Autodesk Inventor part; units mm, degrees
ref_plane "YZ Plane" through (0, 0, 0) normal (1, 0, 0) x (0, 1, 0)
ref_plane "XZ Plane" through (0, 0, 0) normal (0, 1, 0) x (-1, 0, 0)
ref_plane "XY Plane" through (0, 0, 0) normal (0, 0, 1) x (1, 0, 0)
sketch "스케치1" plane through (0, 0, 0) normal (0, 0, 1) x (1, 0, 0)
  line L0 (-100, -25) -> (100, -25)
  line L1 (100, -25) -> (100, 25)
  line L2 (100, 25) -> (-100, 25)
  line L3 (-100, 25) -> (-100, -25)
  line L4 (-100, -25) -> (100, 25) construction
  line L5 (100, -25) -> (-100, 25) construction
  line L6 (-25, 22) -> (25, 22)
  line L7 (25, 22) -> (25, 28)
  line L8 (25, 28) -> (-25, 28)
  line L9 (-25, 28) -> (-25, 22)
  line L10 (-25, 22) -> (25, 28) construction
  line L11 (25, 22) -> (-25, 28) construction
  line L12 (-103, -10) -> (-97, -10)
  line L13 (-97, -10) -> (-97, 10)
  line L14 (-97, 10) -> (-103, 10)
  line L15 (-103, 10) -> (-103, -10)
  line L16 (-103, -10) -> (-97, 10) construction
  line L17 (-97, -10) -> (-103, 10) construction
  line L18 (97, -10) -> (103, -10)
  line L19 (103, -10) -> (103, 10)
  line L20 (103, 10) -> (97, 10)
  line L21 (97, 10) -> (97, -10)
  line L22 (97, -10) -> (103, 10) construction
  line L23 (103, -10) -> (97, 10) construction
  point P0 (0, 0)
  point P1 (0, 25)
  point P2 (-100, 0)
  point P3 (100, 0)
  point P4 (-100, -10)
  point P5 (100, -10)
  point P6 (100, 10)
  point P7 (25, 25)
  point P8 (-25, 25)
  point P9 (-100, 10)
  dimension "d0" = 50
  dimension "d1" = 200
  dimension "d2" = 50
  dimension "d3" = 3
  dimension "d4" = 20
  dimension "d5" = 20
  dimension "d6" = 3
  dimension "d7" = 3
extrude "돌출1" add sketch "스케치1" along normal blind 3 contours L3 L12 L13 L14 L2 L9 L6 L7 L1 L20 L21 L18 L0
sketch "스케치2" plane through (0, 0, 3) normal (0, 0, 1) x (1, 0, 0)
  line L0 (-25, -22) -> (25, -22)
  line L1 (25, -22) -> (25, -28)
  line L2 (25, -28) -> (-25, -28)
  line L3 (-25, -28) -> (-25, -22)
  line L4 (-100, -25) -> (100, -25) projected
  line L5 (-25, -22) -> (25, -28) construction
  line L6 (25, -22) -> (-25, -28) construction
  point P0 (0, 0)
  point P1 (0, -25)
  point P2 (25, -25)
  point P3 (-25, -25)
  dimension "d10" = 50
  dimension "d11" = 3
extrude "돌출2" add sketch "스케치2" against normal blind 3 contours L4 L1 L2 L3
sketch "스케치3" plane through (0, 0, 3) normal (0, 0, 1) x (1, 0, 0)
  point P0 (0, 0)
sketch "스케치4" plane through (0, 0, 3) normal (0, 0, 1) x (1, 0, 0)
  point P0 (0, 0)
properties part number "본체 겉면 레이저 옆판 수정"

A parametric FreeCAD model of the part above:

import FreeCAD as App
import Part
import Sketcher

V = App.Vector
Q = App.Units.Quantity


def add_polygon(sketch, points):
    """Adds a closed chain of lines whose ends are joined by coincident constraints."""
    first, n = sketch.GeometryCount, len(points)
    for a, b in zip(points, points[1:] + points[:1]):
        sketch.addGeometry(Part.LineSegment(App.Vector(*a, 0), App.Vector(*b, 0)), False)
    for i in range(n):
        sketch.addConstraint(Sketcher.Constraint("Coincident", first + i, 2, first + (i + 1) % n, 1))

doc = App.newDocument("Part")
body = doc.addObject("PartDesign::Body", "Body")

sketch1 = doc.addObject("Sketcher::SketchObject", "Sketch")
body.addObject(sketch1)
sketch1.AttachmentSupport = (doc.XY_Plane, [""])
sketch1.MapMode = "FlatFace"
add_polygon(sketch1, [(-100, -10), (-100, -25), (100, -25), (100, -10), (97, -10), (97, 10), (100, 10), (100, 25), (25, 25), (25, 22), (-25, 22), (-25, 25), (-100, 25), (-100, 10), (-97, 10), (-97, -10)])
sketch1.addConstraint([
    Sketcher.Constraint("Vertical", 0),
    Sketcher.Constraint("Horizontal", 1),
    Sketcher.Constraint("Vertical", 2),
    Sketcher.Constraint("Horizontal", 3),
    Sketcher.Constraint("Vertical", 4),
    Sketcher.Constraint("Horizontal", 5),
    Sketcher.Constraint("Vertical", 6),
    Sketcher.Constraint("Horizontal", 7),
    Sketcher.Constraint("Vertical", 8),
    Sketcher.Constraint("Horizontal", 9),
    Sketcher.Constraint("Vertical", 10),
    Sketcher.Constraint("Horizontal", 11),
    Sketcher.Constraint("Vertical", 12),
    Sketcher.Constraint("Horizontal", 13),
    Sketcher.Constraint("Vertical", 14),
    Sketcher.Constraint("Horizontal", 15),
    Sketcher.Constraint("Symmetric", 0, 2, 6, 2, -1, 1),
    Sketcher.Constraint("Symmetric", 1, 2, 11, 2, -1, 1),
    Sketcher.Constraint("Symmetric", 3, 2, 13, 2, -1, 1),
    Sketcher.Constraint("Symmetric", 5, 2, 12, 2, -2),
    Sketcher.Constraint("Horizontal", 3, 2, 14, 2),
    Sketcher.Constraint("Equal", 7, 11),
    Sketcher.Constraint("Equal", 15, 8),
    Sketcher.Constraint("DistanceX", 1, 1, 1, 2, Q("200 mm")),
    Sketcher.Constraint("DistanceX", 3, 2, 3, 1, Q("3 mm")),
    Sketcher.Constraint("DistanceX", 9, 2, 9, 1, Q("50 mm")),
    Sketcher.Constraint("DistanceY", 4, 1, 4, 2, Q("20 mm")),
    Sketcher.Constraint("DistanceY", 1, 2, 6, 2, Q("50 mm")),
])
pad1 = doc.addObject("PartDesign::Pad", "Pad")
body.addObject(pad1)
pad1.Profile = sketch1
pad1.Length = 3

sketch2 = doc.addObject("Sketcher::SketchObject", "Sketch001")
body.addObject(sketch2)
sketch2.AttachmentSupport = (doc.XY_Plane, [""])
sketch2.MapMode = "FlatFace"
sketch2.AttachmentOffset = App.Placement(V(0, 0, 3), App.Rotation())
add_polygon(sketch2, [(25, -25), (-25, -25), (-25, -28), (25, -28)])
sketch2.addConstraint([
    Sketcher.Constraint("Horizontal", 0),
    Sketcher.Constraint("Vertical", 1),
    Sketcher.Constraint("Horizontal", 2),
    Sketcher.Constraint("Vertical", 3),
    Sketcher.Constraint("DistanceX", 0, 2, 0, 1, Q("50 mm")),
    Sketcher.Constraint("DistanceY", 1, 2, 1, 1, Q("3 mm")),
    Sketcher.Constraint("DistanceX", 0, 2, -1, 1, Q("25 mm")),
    Sketcher.Constraint("DistanceY", 0, 2, -1, 1, Q("25 mm")),
])
pad2 = doc.addObject("PartDesign::Pad", "Pad001")
body.addObject(pad2)
pad2.Profile = sketch2
pad2.Length = 3
pad2.Reversed = True

doc.recompute()
